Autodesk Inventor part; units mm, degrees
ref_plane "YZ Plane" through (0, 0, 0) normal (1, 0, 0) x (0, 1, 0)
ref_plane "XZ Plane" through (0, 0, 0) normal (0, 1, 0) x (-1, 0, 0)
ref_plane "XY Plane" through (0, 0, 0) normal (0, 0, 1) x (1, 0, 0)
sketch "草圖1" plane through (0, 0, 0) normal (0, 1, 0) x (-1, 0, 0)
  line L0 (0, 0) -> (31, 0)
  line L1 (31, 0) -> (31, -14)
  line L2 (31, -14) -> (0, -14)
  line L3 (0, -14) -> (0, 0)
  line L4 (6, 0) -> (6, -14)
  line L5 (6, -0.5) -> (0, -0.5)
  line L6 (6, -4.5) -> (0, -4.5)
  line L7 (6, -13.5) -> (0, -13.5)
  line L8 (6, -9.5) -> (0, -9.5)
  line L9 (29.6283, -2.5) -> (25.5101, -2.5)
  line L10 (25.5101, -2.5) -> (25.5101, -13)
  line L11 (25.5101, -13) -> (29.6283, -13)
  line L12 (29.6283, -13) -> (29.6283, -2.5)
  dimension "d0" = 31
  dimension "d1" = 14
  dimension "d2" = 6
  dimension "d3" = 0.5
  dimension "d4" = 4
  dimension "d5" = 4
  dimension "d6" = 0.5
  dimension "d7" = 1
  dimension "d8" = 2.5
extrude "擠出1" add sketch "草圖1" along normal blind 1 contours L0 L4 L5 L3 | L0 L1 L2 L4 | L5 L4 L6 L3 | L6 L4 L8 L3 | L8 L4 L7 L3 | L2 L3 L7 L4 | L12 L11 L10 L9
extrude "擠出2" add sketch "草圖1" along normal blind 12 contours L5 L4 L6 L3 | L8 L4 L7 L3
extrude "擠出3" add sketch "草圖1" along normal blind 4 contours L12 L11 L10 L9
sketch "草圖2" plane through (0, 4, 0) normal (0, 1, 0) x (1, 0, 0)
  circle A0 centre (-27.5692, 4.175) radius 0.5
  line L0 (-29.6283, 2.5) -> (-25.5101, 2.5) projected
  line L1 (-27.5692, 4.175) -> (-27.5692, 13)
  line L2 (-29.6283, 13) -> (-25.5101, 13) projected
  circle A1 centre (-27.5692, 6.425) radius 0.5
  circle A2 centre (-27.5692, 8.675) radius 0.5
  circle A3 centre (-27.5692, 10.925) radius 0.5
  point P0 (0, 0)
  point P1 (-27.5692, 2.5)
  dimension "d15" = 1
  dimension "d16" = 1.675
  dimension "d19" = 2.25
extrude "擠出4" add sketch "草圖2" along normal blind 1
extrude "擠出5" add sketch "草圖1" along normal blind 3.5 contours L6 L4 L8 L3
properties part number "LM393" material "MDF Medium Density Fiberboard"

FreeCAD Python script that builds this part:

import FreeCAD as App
import Part
import Sketcher

doc = App.newDocument("Part")
params = doc.addObject("Spreadsheet::Sheet", "Params")
for row, (alias, value) in enumerate([
    ("sketch1_width", "31 mm"),
    ("sketch1_height", "14 mm"),
    ("pad1_length", "1 mm"),
    ("sketch2_width", "6 mm"),
    ("sketch2_height", "4 mm"),
    ("pad2_length", "12 mm"),
    ("sketch3_height", "10.5 mm"),
    ("pad3_length", "4 mm"),
    ("sketch4_diameter", "1 mm"),
    ("pad4_length", "1 mm"),
    ("sketch5_width", "6 mm"),
    ("sketch5_height", "5 mm"),
    ("pad5_length", "3.5 mm"),
], start=1):
    params.set(f"A{row}", alias)
    params.set(f"B{row}", "=" + value)
    params.setAlias(f"B{row}", alias)

body = doc.addObject("PartDesign::Body", "Body")

# Sketch on XZ plane
sketch1 = body.newObject("Sketcher::SketchObject", "Sketch")
sketch1.AttachmentSupport = (doc.getObject("XZ_Plane"), [""])
sketch1.MapMode = "FlatFace"
sketch1.addGeometry([
    Part.LineSegment(App.Vector(0, 0, 0), App.Vector(0, -14, 0)),
    Part.LineSegment(App.Vector(0, -14, 0), App.Vector(-31, -14, 0)),
    Part.LineSegment(App.Vector(-31, -14, 0), App.Vector(-31, 0, 0)),
    Part.LineSegment(App.Vector(-31, 0, 0), App.Vector(0, 0, 0)),
], False)
sketch1.addConstraint([
    Sketcher.Constraint("Coincident", 0, 2, 1, 1),
    Sketcher.Constraint("Coincident", 1, 2, 2, 1),
    Sketcher.Constraint("Coincident", 2, 2, 3, 1),
    Sketcher.Constraint("Coincident", 3, 2, 0, 1),
    Sketcher.Constraint("Vertical", 0),
    Sketcher.Constraint("Horizontal", 1),
    Sketcher.Constraint("Vertical", 2),
    Sketcher.Constraint("Horizontal", 3),
    Sketcher.Constraint("Coincident", 3, 2, -1, 1),
    Sketcher.Constraint("DistanceX", 1, 2, 1, 1, 31.0),
    Sketcher.Constraint("DistanceY", 0, 2, 0, 1, 14.0),
])
sketch1.setExpression("Constraints[9]", "Params.sketch1_width")
sketch1.setExpression("Constraints[10]", "Params.sketch1_height")
pad1 = body.newObject("PartDesign::Pad", "Pad")
pad1.Profile = sketch1
pad1.setExpression("Length", "Params.pad1_length")
pad1.Reversed = True

# Sketch on XZ plane
sketch2 = body.newObject("Sketcher::SketchObject", "Sketch001")
sketch2.AttachmentSupport = (doc.getObject("XZ_Plane"), [""])
sketch2.MapMode = "FlatFace"
sketch2.addGeometry([
    Part.LineSegment(App.Vector(-6, -0.5, 0), App.Vector(0, -0.5, 0)),  # 0
    Part.LineSegment(App.Vector(0, -0.5, 0), App.Vector(0, -4.5, 0)),  # 1
    Part.LineSegment(App.Vector(0, -4.5, 0), App.Vector(-6, -4.5, 0)),  # 2
    Part.LineSegment(App.Vector(-6, -4.5, 0), App.Vector(-6, -0.5, 0)),  # 3
    Part.LineSegment(App.Vector(-6, -9.5, 0), App.Vector(0, -9.5, 0)),  # 4
    Part.LineSegment(App.Vector(0, -9.5, 0), App.Vector(0, -13.5, 0)),  # 5
    Part.LineSegment(App.Vector(0, -13.5, 0), App.Vector(-6, -13.5, 0)),  # 6
    Part.LineSegment(App.Vector(-6, -13.5, 0), App.Vector(-6, -9.5, 0)),  # 7
], False)
sketch2.addConstraint([
    Sketcher.Constraint("Coincident", 0, 2, 1, 1),
    Sketcher.Constraint("Coincident", 1, 2, 2, 1),
    Sketcher.Constraint("Coincident", 2, 2, 3, 1),
    Sketcher.Constraint("Coincident", 3, 2, 0, 1),
    Sketcher.Constraint("Coincident", 4, 2, 5, 1),
    Sketcher.Constraint("Coincident", 5, 2, 6, 1),
    Sketcher.Constraint("Coincident", 6, 2, 7, 1),
    Sketcher.Constraint("Coincident", 7, 2, 4, 1),
    Sketcher.Constraint("Horizontal", 0),
    Sketcher.Constraint("Vertical", 1),
    Sketcher.Constraint("Horizontal", 2),
    Sketcher.Constraint("Vertical", 3),
    Sketcher.Constraint("Horizontal", 4),
    Sketcher.Constraint("Vertical", 5),
    Sketcher.Constraint("Horizontal", 6),
    Sketcher.Constraint("Vertical", 7),
    Sketcher.Constraint("PointOnObject", 0, 2, -2),
    Sketcher.Constraint("PointOnObject", 4, 2, -2),
    Sketcher.Constraint("Vertical", 3, 2, 6, 2),
    Sketcher.Constraint("Equal", 3, 5),
    Sketcher.Constraint("DistanceX", 0, 1, 0, 2, 6.0),
    Sketcher.Constraint("DistanceY", 1, 2, 1, 1, 4.0),
    Sketcher.Constraint("DistanceY", 0, 2, -1, 1, 0.5),
    Sketcher.Constraint("DistanceY", 4, 2, 1, 2, 5.0),
])
sketch2.setExpression("Constraints[20]", "Params.sketch2_width")
sketch2.setExpression("Constraints[21]", "Params.sketch2_height")
pad2 = body.newObject("PartDesign::Pad", "Pad001")
pad2.Profile = sketch2
pad2.setExpression("Length", "Params.pad2_length")
pad2.Reversed = True

# Sketch on XZ plane
sketch3 = body.newObject("Sketcher::SketchObject", "Sketch002")
sketch3.AttachmentSupport = (doc.getObject("XZ_Plane"), [""])
sketch3.MapMode = "FlatFace"
sketch3.addGeometry([
    Part.LineSegment(App.Vector(-29.6, -13, 0), App.Vector(-29.6, -2.5, 0)),
    Part.LineSegment(App.Vector(-29.6, -2.5, 0), App.Vector(-25.5, -2.5, 0)),
    Part.LineSegment(App.Vector(-25.5, -2.5, 0), App.Vector(-25.5, -13, 0)),
    Part.LineSegment(App.Vector(-25.5, -13, 0), App.Vector(-29.6, -13, 0)),
], False)
sketch3.addConstraint([
    Sketcher.Constraint("Coincident", 0, 2, 1, 1),
    Sketcher.Constraint("Coincident", 1, 2, 2, 1),
    Sketcher.Constraint("Coincident", 2, 2, 3, 1),
    Sketcher.Constraint("Coincident", 3, 2, 0, 1),
    Sketcher.Constraint("Vertical", 0),
    Sketcher.Constraint("Horizontal", 1),
    Sketcher.Constraint("Vertical", 2),
    Sketcher.Constraint("Horizontal", 3),
    Sketcher.Constraint("DistanceY", 0, 2, -1, 1, 2.5),
    Sketcher.Constraint("DistanceY", 0, 1, 0, 2, 10.5),
    Sketcher.Constraint("DistanceX", 1, 2, -1, 1, 25.51),
    Sketcher.Constraint("DistanceX", 1, 1, 1, 2, 4.1182),
])
sketch3.setExpression("Constraints[9]", "Params.sketch3_height")
pad3 = body.newObject("PartDesign::Pad", "Pad002")
pad3.Profile = sketch3
pad3.setExpression("Length", "Params.pad3_length")
pad3.Reversed = True

# Sketch on XZ plane
sketch4 = body.newObject("Sketcher::SketchObject", "Sketch003")
sketch4.AttachmentSupport = (doc.getObject("XZ_Plane"), [""])
sketch4.MapMode = "FlatFace"
sketch4.AttachmentOffset = App.Placement(App.Vector(0, 0, -4), App.Rotation())
sketch4.addGeometry([
    Part.Circle(App.Vector(-27.6, -4.2, 0), App.Vector(0, 0, 1), 0.5),
    Part.Circle(App.Vector(-27.6, -10.9, 0), App.Vector(0, 0, 1), 0.5),
    Part.Circle(App.Vector(-27.6, -8.7, 0), App.Vector(0, 0, 1), 0.5),
    Part.Circle(App.Vector(-27.6, -6.4, 0), App.Vector(0, 0, 1), 0.5),
], False)
sketch4.addConstraint([
    Sketcher.Constraint("Equal", 0, 1),
    Sketcher.Constraint("Equal", 1, 2),
    Sketcher.Constraint("Equal", 2, 3),
    Sketcher.Constraint("Vertical", 0, 3, 1, 3),
    Sketcher.Constraint("Vertical", 1, 3, 2, 3),
    Sketcher.Constraint("Vertical", 2, 3, 3, 3),
    Sketcher.Constraint("Diameter", 0, 1.0),
    Sketcher.Constraint("DistanceY", 1, 3, 2, 3, 2.25),
    Sketcher.Constraint("DistanceY", 3, 3, 0, 3, 2.25),
    Sketcher.Constraint("DistanceY", 2, 3, 3, 3, 2.25),
    Sketcher.Constraint("DistanceY", 0, 3, -1, 1, 4.175),
    Sketcher.Constraint("DistanceX", 0, 3, -1, 1, 27.5692),
])
sketch4.setExpression("Constraints[6]", "Params.sketch4_diameter")
pad4 = body.newObject("PartDesign::Pad", "Pad003")
pad4.Profile = sketch4
pad4.setExpression("Length", "Params.pad4_length")
pad4.Reversed = True

# Sketch on XZ plane
sketch5 = body.newObject("Sketcher::SketchObject", "Sketch004")
sketch5.AttachmentSupport = (doc.getObject("XZ_Plane"), [""])
sketch5.MapMode = "FlatFace"
sketch5.addGeometry([
    Part.LineSegment(App.Vector(-6, -4, 0), App.Vector(0, -4, 0)),
    Part.LineSegment(App.Vector(0, -4, 0), App.Vector(0, -10, 0)),
    Part.LineSegment(App.Vector(0, -10, 0), App.Vector(-6, -10, 0)),
    Part.LineSegment(App.Vector(-6, -10, 0), App.Vector(-6, -4, 0)),
], False)
sketch5.addConstraint([
    Sketcher.Constraint("Coincident", 0, 2, 1, 1),
    Sketcher.Constraint("Coincident", 1, 2, 2, 1),
    Sketcher.Constraint("Coincident", 2, 2, 3, 1),
    Sketcher.Constraint("Coincident", 3, 2, 0, 1),
    Sketcher.Constraint("Horizontal", 0),
    Sketcher.Constraint("Vertical", 1),
    Sketcher.Constraint("Horizontal", 2),
    Sketcher.Constraint("Vertical", 3),
    Sketcher.Constraint("PointOnObject", 0, 2, -2),
    Sketcher.Constraint("DistanceX", 0, 1, 0, 2, 6.0),
    Sketcher.Constraint("DistanceY", 1, 2, 1, 1, 5.0),
    Sketcher.Constraint("DistanceY", 0, 2, -1, 1, 4.5),
])
sketch5.setExpression("Constraints[9]", "Params.sketch5_width")
sketch5.setExpression("Constraints[10]", "Params.sketch5_height")
pad5 = body.newObject("PartDesign::Pad", "Pad004")
pad5.Profile = sketch5
pad5.setExpression("Length", "Params.pad5_length")
pad5.Reversed = True

doc.recompute()
